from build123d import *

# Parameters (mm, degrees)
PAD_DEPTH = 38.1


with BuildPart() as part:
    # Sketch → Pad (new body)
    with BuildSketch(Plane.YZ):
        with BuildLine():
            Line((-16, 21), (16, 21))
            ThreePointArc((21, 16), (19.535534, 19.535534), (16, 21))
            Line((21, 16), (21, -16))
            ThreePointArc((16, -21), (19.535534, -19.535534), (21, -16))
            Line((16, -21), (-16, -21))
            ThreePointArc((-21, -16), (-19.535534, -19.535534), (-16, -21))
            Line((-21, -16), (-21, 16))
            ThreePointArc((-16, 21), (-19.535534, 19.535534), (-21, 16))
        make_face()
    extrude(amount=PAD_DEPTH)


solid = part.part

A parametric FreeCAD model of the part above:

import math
import FreeCAD as App
import Part
import Sketcher
from FreeCAD import Vector
Q = App.Units.Quantity

doc = App.newDocument("Part")
body = doc.addObject("PartDesign::Body", "Body")

# Sketch on YZ plane
sketch1 = body.newObject("Sketcher::SketchObject", "Sketch")
sketch1.AttachmentSupport = (doc.getObject("YZ_Plane"), [""])
sketch1.MapMode = "FlatFace"
sketch1.addGeometry(Part.LineSegment(Vector(16, 21, 0), Vector(-16, 21, 0)), False)
sketch1.addGeometry(Part.ArcOfCircle(Part.Circle(Vector(-16, 16, 0), Vector(0, 0, 1), 5), math.radians(89.999996), math.radians(180.000004)), False)
sketch1.addGeometry(Part.LineSegment(Vector(-21, 16, 0), Vector(-21, -16, 0)), False)
sketch1.addGeometry(Part.ArcOfCircle(Part.Circle(Vector(-16, -16, 0), Vector(0, 0, 1), 5), math.radians(179.999996), math.radians(270.000004)), False)
sketch1.addGeometry(Part.LineSegment(Vector(-16, -21, 0), Vector(16, -21, 0)), False)
sketch1.addGeometry(Part.ArcOfCircle(Part.Circle(Vector(16, -16, 0), Vector(0, 0, 1), 5), math.radians(-90.000004), math.radians(0.000004)), False)
sketch1.addGeometry(Part.LineSegment(Vector(21, -16, 0), Vector(21, 16, 0)), False)
sketch1.addGeometry(Part.ArcOfCircle(Part.Circle(Vector(16, 16, 0), Vector(0, 0, 1), 5), math.radians(-0.000004), math.radians(90.000004)), False)
sketch1.addConstraint(Sketcher.Constraint("Tangent", 0, 2, 1, 1))
sketch1.addConstraint(Sketcher.Constraint("Tangent", 1, 2, 2, 1))
sketch1.addConstraint(Sketcher.Constraint("Tangent", 2, 2, 3, 1))
sketch1.addConstraint(Sketcher.Constraint("Tangent", 3, 2, 4, 1))
sketch1.addConstraint(Sketcher.Constraint("Tangent", 4, 2, 5, 1))
sketch1.addConstraint(Sketcher.Constraint("Tangent", 5, 2, 6, 1))
sketch1.addConstraint(Sketcher.Constraint("Tangent", 6, 2, 7, 1))
sketch1.addConstraint(Sketcher.Constraint("Tangent", 7, 2, 0, 1))
sketch1.addConstraint(Sketcher.Constraint("Horizontal", 0))
sketch1.addConstraint(Sketcher.Constraint("Vertical", 2))
sketch1.addConstraint(Sketcher.Constraint("Horizontal", 4))
sketch1.addConstraint(Sketcher.Constraint("Vertical", 6))
sketch1.addConstraint(Sketcher.Constraint("Equal", 1, 3))
sketch1.addConstraint(Sketcher.Constraint("Equal", 3, 5))
sketch1.addConstraint(Sketcher.Constraint("Equal", 5, 7))
sketch1.addConstraint(Sketcher.Constraint("Symmetric", 1, 3, 5, 3, -1, 1))
sketch1.addConstraint(Sketcher.Constraint("Equal", 4, 2))
sketch1.addConstraint(Sketcher.Constraint("Radius", 1, Q("5 mm")))
sketch1.addConstraint(Sketcher.Constraint("DistanceX", 0, 2, 0, 1, Q("32 mm")))
pad1 = body.newObject("PartDesign::Pad", "Pad")
pad1.Profile = sketch1
pad1.Length = 38.1

doc.recompute()
